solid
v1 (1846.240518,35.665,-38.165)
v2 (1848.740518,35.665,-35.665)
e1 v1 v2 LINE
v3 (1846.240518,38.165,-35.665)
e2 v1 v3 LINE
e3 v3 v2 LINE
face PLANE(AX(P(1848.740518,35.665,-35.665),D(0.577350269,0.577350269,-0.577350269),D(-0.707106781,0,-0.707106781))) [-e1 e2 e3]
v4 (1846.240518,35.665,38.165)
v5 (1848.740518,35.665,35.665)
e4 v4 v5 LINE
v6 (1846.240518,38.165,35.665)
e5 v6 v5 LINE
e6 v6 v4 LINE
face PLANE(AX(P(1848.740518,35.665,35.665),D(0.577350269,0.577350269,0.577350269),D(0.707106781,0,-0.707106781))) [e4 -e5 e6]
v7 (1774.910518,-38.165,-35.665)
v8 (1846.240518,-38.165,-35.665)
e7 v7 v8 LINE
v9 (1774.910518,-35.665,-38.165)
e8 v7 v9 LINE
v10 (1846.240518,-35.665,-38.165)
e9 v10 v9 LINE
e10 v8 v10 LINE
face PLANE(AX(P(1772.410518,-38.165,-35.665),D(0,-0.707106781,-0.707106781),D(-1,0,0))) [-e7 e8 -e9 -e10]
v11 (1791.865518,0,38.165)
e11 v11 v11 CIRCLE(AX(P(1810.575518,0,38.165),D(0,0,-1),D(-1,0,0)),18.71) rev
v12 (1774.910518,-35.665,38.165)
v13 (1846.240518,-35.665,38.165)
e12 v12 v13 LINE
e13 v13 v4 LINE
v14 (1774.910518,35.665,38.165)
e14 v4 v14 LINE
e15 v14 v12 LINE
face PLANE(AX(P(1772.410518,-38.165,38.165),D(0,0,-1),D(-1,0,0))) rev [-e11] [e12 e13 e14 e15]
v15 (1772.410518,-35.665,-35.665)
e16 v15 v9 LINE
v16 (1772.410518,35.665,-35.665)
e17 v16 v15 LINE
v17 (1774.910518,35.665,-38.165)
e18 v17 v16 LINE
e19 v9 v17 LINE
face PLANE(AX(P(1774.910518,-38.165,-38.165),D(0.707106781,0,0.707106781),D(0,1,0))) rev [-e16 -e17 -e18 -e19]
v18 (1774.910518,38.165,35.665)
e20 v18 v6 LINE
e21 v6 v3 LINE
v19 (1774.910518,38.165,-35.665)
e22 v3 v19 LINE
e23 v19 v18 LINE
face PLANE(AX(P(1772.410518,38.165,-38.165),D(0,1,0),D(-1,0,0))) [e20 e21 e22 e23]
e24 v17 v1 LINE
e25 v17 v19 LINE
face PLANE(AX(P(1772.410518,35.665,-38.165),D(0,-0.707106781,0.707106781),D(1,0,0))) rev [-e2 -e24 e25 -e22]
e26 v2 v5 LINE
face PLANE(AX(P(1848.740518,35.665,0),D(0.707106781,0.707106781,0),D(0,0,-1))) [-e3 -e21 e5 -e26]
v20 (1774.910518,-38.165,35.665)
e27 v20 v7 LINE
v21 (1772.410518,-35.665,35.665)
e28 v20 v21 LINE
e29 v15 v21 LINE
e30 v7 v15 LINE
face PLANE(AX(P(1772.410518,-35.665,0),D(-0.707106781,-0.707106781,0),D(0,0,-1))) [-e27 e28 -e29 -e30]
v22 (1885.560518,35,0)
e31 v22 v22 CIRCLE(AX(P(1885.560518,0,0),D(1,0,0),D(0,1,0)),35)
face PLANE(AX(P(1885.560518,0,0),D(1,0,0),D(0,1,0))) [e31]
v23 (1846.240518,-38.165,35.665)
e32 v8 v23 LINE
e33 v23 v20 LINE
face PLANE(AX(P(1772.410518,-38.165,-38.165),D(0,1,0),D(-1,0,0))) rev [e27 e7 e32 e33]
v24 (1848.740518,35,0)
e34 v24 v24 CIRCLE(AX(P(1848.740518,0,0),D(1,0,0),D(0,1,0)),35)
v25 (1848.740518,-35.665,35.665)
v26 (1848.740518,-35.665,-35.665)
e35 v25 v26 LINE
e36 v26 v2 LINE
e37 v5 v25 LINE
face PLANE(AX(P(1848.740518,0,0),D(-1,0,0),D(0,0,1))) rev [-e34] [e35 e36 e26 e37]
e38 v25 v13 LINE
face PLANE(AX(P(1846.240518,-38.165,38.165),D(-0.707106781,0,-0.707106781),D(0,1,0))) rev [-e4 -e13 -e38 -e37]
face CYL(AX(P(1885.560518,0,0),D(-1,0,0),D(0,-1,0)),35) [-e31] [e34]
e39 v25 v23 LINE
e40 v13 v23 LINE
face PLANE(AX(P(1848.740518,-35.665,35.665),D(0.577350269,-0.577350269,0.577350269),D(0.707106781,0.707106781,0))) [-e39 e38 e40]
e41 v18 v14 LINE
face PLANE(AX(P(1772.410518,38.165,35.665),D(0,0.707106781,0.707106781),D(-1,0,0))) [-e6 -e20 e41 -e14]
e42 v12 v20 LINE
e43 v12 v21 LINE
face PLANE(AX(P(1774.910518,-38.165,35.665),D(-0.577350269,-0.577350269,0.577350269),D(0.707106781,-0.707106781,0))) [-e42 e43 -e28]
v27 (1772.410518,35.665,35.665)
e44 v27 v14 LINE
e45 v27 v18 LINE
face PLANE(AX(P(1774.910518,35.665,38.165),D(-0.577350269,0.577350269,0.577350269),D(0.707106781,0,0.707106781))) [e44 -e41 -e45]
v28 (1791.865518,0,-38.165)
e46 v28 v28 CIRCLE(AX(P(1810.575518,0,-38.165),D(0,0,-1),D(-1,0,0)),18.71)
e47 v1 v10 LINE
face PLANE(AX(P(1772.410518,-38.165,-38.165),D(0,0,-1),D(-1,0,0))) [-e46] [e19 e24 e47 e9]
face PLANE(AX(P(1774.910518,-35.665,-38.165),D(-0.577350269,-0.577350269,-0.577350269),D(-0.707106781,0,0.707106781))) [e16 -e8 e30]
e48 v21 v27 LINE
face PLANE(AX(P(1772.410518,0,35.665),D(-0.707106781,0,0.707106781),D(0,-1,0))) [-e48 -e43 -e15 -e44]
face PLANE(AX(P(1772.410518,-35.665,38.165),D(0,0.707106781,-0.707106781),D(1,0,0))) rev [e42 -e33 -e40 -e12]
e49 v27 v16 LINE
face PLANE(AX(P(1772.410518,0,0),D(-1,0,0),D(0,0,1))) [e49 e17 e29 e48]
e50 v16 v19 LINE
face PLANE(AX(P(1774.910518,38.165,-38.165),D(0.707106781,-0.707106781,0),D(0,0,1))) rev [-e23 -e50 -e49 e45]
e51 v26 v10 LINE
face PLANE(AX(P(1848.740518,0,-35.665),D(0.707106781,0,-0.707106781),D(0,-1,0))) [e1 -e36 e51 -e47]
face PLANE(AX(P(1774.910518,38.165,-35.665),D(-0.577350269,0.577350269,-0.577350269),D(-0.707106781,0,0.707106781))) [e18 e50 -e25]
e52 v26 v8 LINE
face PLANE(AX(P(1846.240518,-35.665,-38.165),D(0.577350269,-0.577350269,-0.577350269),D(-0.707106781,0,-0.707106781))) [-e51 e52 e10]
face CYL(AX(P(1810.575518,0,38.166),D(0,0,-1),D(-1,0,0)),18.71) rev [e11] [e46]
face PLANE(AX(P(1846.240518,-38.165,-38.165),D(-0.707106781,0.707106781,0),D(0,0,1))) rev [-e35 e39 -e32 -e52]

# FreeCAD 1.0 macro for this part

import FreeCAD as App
import Part
import Sketcher
Q = App.Units.Quantity


def edges_at(feature, points):
    """Names of the edges that pass closest to the given points."""
    edges = feature.Shape.Edges
    near = lambda p: min(range(len(edges)), key=lambda i: edges[i].distToShape(Part.Vertex(*p))[0])
    return sorted({f"Edge{near(p) + 1}" for p in points})


def add_polygon(sketch, points):
    """Adds a closed chain of lines whose ends are joined by coincident constraints."""
    first, n = sketch.GeometryCount, len(points)
    for a, b in zip(points, points[1:] + points[:1]):
        sketch.addGeometry(Part.LineSegment(App.Vector(*a, 0), App.Vector(*b, 0)), False)
    for i in range(n):
        sketch.addConstraint(Sketcher.Constraint("Coincident", first + i, 2, first + (i + 1) % n, 1))

doc = App.newDocument("Part")
params = doc.addObject("Spreadsheet::Sheet", "Params")
for row, (alias, value) in enumerate([
    ("sketch1_width", "76.33 mm"),
    ("pad1_length", "76.33 mm"),
    ("sketch2_diameter", "70 mm"),
    ("pad2_length", "36.82 mm"),
    ("chamfer_size", "2.5 mm"),
    ("sketch3_diameter", "37.42 mm"),
], start=1):
    params.set(f"A{row}", alias)
    params.set(f"B{row}", "=" + value)
    params.setAlias(f"B{row}", alias)

body = doc.addObject("PartDesign::Body", "Body")

sketch1 = body.newObject("Sketcher::SketchObject", "Sketch")
sketch1.AttachmentSupport = (doc.getObject("YZ_Plane"), [""])
sketch1.MapMode = "FlatFace"
sketch1.AttachmentOffset = App.Placement(App.Vector(0, 0, 1848.740518), App.Rotation())
add_polygon(sketch1, [(38.165, -38.165), (-38.165, -38.165), (-38.165, 38.165), (38.165, 38.165)])
sketch1.addConstraint(Sketcher.Constraint("Horizontal", 0))
sketch1.addConstraint(Sketcher.Constraint("Vertical", 1))
sketch1.addConstraint(Sketcher.Constraint("Horizontal", 2))
sketch1.addConstraint(Sketcher.Constraint("Vertical", 3))
sketch1.addConstraint(Sketcher.Constraint("Symmetric", 0, 2, 2, 2, -1, 1))
sketch1.addConstraint(Sketcher.Constraint("Equal", 2, 1))
sketch1.addConstraint(Sketcher.Constraint("DistanceX", 0, 2, 0, 1, Q("76.33 mm")))
sketch1.setExpression("Constraints[10]", "Params.sketch1_width")
pad1 = body.newObject("PartDesign::Pad", "Pad")
pad1.Profile = sketch1
pad1.setExpression("Length", "Params.pad1_length")
pad1.Reversed = True

sketch2 = body.newObject("Sketcher::SketchObject", "Sketch001")
sketch2.AttachmentSupport = (doc.getObject("YZ_Plane"), [""])
sketch2.MapMode = "FlatFace"
sketch2.AttachmentOffset = App.Placement(App.Vector(0, 0, 1848.740518), App.Rotation())
sketch2.addGeometry(Part.Circle(App.Vector(0, 0, 0), App.Vector(0, 0, 1), 35), False)
sketch2.addConstraint(Sketcher.Constraint("Coincident", 0, 3, -1, 1))
sketch2.addConstraint(Sketcher.Constraint("Diameter", 0, Q("70 mm")))
sketch2.setExpression("Constraints[1]", "Params.sketch2_diameter")
pad2 = body.newObject("PartDesign::Pad", "Pad001")
pad2.Profile = sketch2
pad2.setExpression("Length", "Params.pad2_length")
doc.recompute()

chamfer = body.newObject("PartDesign::Chamfer", "Chamfer")
chamfer.Base = (pad2, edges_at(pad2, [
    (1772.411, -38.165, 0),
    (1772.411, 0, -38.165),
    (1772.411, 38.165, 0),
    (1848.741, 0, -38.165),
    (1848.741, -38.165, 0),
    (1848.741, 0, 38.165),
    (1848.741, 38.165, 0),
    (1772.411, 0, 38.165),
    (1810.576, 38.165, -38.165),
    (1810.576, -38.165, -38.165),
    (1810.576, -38.165, 38.165),
    (1810.576, 38.165, 38.165),
]))
chamfer.setExpression("Size", "Params.chamfer_size")

sketch3 = body.newObject("Sketcher::SketchObject", "Sketch002")
sketch3.AttachmentSupport = (doc.getObject("XY_Plane"), [""])
sketch3.MapMode = "FlatFace"
sketch3.AttachmentOffset = App.Placement(App.Vector(0, 0, -38.165), App.Rotation())
sketch3.addGeometry(Part.Circle(App.Vector(1810.575518, 0, 0), App.Vector(0, 0, 1), 18.71), False)
sketch3.addConstraint(Sketcher.Constraint("PointOnObject", 0, 3, -1))
sketch3.addConstraint(Sketcher.Constraint("Diameter", 0, Q("37.42 mm")))
sketch3.addConstraint(Sketcher.Constraint("DistanceX", -1, 1, 0, 3, Q("1810.575518 mm")))
sketch3.setExpression("Constraints[1]", "Params.sketch3_diameter")
pocket1 = body.newObject("PartDesign::Pocket", "Pocket")
pocket1.Profile = sketch3
pocket1.Type = "UpToFirst"
pocket1.Reversed = True

doc.recompute()
